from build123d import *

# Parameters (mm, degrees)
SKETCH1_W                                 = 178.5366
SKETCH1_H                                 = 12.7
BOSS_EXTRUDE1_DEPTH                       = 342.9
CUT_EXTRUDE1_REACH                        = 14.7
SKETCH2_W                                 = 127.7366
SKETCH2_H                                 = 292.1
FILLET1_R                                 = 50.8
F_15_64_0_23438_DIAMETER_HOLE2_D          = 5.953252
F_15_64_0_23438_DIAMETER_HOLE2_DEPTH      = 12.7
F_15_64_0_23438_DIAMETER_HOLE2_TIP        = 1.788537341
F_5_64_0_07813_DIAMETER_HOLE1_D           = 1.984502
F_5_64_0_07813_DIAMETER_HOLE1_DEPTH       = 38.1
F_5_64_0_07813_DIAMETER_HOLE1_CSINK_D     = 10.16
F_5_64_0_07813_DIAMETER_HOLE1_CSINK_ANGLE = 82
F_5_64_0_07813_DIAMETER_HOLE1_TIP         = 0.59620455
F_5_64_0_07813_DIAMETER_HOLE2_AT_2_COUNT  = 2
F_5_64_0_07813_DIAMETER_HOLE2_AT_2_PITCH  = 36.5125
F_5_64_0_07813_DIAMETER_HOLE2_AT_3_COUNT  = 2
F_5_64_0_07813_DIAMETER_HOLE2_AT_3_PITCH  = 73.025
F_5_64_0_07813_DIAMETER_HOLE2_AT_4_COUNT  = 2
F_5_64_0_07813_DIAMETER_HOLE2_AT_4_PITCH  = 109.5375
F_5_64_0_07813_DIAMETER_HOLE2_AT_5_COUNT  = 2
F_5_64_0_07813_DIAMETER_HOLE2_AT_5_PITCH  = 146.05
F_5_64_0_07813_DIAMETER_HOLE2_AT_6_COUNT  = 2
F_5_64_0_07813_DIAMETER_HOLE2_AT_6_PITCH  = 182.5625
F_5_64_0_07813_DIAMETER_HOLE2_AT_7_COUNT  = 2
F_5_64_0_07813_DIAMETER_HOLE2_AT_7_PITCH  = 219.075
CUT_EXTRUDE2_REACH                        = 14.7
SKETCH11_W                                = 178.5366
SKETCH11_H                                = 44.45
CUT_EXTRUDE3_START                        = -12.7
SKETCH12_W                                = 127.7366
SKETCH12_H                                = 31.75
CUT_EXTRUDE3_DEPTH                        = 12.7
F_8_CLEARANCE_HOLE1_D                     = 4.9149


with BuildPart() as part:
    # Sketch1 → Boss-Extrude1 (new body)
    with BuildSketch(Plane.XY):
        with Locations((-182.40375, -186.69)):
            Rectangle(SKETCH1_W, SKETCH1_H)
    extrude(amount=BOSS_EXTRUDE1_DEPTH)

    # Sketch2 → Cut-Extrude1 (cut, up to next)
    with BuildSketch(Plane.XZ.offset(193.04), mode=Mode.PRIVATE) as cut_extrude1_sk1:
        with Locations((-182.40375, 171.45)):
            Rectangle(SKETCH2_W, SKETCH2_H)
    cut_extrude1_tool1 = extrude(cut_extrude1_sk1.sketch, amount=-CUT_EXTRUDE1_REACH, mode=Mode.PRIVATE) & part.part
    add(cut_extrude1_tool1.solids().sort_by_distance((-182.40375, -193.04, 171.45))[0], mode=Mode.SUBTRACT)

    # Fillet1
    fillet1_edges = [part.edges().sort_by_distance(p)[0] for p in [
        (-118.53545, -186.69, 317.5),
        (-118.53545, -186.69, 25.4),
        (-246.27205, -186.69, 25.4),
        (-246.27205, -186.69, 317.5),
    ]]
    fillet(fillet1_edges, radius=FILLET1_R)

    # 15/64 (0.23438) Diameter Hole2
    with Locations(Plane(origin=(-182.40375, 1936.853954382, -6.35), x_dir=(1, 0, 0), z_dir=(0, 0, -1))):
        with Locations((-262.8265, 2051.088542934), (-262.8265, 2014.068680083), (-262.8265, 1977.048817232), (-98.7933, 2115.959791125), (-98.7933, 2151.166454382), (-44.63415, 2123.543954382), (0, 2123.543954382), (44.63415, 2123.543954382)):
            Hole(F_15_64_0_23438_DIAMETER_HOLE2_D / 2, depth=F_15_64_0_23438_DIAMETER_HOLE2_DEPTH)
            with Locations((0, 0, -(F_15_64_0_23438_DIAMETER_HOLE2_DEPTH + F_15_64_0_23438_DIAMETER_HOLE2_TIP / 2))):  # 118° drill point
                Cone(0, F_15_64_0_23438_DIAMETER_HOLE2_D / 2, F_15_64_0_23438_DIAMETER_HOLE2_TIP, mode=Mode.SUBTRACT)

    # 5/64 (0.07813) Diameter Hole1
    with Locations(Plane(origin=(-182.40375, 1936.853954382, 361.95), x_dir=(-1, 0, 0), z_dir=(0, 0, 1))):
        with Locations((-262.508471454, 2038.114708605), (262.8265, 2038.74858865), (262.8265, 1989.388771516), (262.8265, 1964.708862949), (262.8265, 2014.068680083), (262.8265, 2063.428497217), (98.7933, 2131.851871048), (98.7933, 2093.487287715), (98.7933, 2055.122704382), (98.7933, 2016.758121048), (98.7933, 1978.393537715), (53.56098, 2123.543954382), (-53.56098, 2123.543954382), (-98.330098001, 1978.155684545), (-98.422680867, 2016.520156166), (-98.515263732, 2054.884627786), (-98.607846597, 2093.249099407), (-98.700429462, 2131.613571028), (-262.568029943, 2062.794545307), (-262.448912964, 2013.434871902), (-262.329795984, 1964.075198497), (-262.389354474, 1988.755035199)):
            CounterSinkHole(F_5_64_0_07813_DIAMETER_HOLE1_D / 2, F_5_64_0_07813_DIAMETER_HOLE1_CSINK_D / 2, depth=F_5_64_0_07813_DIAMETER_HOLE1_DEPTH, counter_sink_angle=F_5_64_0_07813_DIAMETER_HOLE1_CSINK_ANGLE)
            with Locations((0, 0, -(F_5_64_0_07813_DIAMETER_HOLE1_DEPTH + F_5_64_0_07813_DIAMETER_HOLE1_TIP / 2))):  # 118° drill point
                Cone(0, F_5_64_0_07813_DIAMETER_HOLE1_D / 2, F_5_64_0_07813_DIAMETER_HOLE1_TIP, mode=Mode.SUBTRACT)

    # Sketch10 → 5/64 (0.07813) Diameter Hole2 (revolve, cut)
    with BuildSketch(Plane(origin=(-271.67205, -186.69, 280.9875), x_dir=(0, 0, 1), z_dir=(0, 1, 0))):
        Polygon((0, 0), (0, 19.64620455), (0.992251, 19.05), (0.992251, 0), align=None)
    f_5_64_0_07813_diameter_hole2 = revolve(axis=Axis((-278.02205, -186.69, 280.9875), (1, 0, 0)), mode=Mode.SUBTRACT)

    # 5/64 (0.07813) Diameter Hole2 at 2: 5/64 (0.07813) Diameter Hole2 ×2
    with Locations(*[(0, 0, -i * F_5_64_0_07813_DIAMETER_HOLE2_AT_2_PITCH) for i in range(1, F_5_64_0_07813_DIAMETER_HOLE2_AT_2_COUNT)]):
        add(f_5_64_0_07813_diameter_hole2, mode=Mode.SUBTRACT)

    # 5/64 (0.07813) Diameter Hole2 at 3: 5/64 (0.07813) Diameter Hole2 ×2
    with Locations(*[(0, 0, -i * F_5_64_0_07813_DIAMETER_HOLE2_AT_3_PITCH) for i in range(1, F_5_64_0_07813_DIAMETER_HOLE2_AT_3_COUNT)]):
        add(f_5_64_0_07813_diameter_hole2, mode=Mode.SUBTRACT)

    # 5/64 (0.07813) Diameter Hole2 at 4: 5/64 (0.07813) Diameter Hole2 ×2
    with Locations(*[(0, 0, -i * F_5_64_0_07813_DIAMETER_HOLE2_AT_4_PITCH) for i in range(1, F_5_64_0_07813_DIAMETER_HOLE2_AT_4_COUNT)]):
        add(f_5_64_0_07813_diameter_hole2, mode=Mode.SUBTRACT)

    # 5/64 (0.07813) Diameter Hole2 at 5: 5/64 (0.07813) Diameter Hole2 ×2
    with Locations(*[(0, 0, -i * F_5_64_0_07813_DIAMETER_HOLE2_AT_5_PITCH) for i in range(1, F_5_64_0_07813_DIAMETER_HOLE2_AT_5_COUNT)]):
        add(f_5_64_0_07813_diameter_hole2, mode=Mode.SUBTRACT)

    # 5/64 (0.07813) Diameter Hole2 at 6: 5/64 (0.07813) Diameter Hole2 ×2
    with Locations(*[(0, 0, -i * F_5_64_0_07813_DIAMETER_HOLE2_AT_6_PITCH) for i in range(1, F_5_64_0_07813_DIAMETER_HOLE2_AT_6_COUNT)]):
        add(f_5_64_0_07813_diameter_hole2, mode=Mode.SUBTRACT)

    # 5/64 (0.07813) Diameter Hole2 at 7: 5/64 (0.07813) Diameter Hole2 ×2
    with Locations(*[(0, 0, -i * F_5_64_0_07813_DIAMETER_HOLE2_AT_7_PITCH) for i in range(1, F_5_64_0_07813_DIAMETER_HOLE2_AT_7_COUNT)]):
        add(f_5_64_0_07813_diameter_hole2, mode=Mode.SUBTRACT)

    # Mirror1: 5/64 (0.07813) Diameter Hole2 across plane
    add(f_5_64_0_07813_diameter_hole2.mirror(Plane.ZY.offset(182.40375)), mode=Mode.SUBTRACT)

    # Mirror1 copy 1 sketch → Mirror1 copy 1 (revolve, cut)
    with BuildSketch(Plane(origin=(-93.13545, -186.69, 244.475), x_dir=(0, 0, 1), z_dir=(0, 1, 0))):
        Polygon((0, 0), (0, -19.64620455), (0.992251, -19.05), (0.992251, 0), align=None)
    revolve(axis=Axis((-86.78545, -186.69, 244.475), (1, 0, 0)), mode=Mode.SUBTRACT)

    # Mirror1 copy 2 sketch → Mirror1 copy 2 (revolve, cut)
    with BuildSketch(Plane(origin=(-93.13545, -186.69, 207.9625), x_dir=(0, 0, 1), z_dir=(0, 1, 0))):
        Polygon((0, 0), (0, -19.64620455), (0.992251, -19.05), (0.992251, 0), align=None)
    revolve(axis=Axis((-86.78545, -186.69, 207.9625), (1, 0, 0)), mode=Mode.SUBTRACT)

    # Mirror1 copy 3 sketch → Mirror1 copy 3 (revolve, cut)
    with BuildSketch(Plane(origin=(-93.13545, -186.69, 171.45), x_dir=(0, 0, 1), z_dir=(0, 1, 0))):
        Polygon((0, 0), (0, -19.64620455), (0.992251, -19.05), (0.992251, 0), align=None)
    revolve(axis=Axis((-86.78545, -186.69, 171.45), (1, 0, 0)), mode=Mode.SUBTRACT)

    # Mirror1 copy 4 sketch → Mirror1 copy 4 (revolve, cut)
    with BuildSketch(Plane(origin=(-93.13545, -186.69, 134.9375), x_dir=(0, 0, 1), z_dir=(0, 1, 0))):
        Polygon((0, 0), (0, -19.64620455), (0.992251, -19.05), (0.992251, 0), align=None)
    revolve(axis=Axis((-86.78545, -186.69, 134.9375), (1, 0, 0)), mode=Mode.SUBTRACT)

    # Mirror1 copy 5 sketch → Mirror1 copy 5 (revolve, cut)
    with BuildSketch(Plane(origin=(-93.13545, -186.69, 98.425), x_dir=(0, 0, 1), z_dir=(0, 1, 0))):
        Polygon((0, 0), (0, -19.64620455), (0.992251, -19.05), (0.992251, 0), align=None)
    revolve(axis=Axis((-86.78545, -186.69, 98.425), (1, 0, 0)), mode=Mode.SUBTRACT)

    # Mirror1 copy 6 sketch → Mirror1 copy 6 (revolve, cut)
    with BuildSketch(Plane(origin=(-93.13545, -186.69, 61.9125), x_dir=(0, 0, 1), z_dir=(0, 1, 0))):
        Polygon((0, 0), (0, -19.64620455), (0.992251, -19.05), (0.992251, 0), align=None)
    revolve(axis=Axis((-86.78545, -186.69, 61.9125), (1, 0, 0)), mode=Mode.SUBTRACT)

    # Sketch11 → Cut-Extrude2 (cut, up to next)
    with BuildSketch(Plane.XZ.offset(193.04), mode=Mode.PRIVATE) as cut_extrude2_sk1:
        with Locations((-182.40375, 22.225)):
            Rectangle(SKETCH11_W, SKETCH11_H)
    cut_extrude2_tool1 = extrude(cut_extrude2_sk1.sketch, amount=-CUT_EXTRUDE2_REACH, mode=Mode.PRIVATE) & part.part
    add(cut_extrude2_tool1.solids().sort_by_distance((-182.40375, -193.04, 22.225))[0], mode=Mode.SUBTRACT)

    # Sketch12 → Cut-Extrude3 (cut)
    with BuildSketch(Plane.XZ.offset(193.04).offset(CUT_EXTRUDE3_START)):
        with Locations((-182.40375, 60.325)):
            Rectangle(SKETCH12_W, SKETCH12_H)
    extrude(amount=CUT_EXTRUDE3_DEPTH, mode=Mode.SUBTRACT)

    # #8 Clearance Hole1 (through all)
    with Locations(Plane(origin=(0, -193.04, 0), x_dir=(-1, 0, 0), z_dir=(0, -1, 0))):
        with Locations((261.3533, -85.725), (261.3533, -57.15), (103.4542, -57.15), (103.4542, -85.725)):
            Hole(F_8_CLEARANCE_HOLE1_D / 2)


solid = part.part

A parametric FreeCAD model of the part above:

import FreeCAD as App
import Part
import Sketcher
Q = App.Units.Quantity


def edges_at(feature, points):
    """Names of the edges that pass closest to the given points."""
    edges = feature.Shape.Edges
    near = lambda p: min(range(len(edges)), key=lambda i: edges[i].distToShape(Part.Vertex(*p))[0])
    return sorted({f"Edge{near(p) + 1}" for p in points})

doc = App.newDocument("Part")
body = doc.addObject("PartDesign::Body", "Body")

sketch1 = body.newObject("Sketcher::SketchObject", "Sketch")
sketch1.AttachmentSupport = (doc.getObject("XY_Plane"), [""])
sketch1.MapMode = "FlatFace"
sketch1.addGeometry([
    Part.LineSegment(App.Vector(-272, -180, 0), App.Vector(-272, -193, 0)),
    Part.LineSegment(App.Vector(-272, -193, 0), App.Vector(-93, -193, 0)),
    Part.LineSegment(App.Vector(-93, -193, 0), App.Vector(-93, -180, 0)),
    Part.LineSegment(App.Vector(-93, -180, 0), App.Vector(-272, -180, 0)),
], False)
sketch1.addConstraint([
    Sketcher.Constraint("Coincident", 0, 2, 1, 1),
    Sketcher.Constraint("Coincident", 1, 2, 2, 1),
    Sketcher.Constraint("Coincident", 2, 2, 3, 1),
    Sketcher.Constraint("Coincident", 3, 2, 0, 1),
    Sketcher.Constraint("Vertical", 0),
    Sketcher.Constraint("Horizontal", 1),
    Sketcher.Constraint("Vertical", 2),
    Sketcher.Constraint("Horizontal", 3),
    Sketcher.Constraint("DistanceY", 0, 2, 0, 1, Q("0.5 in")),
    Sketcher.Constraint("DistanceY", 0, 2, -1, 1, Q("7.6 in")),
    Sketcher.Constraint("DistanceX", 1, 1, 1, 2, Q("7.029 in")),
    Sketcher.Constraint("DistanceX", 0, 2, -1, 1, Q("271.67205 mm")),
])
pad1 = body.newObject("PartDesign::Pad", "Pad")
pad1.Profile = sketch1
pad1.Length = Q("13.5 in")

sketch2 = body.newObject("Sketcher::SketchObject", "Sketch001")
sketch2.AttachmentSupport = (doc.getObject("XZ_Plane"), [""])
sketch2.MapMode = "FlatFace"
sketch2.AttachmentOffset = App.Placement(App.Vector(0, 0, 7.6 * 25.4), App.Rotation())
sketch2.addGeometry([
    Part.LineSegment(App.Vector(-246, 318, 0), App.Vector(-246, 25, 0)),
    Part.LineSegment(App.Vector(-246, 25, 0), App.Vector(-119, 25, 0)),
    Part.LineSegment(App.Vector(-119, 25, 0), App.Vector(-119, 318, 0)),
    Part.LineSegment(App.Vector(-119, 318, 0), App.Vector(-246, 318, 0)),
], False)
sketch2.addConstraint([
    Sketcher.Constraint("Coincident", 0, 2, 1, 1),
    Sketcher.Constraint("Coincident", 1, 2, 2, 1),
    Sketcher.Constraint("Coincident", 2, 2, 3, 1),
    Sketcher.Constraint("Coincident", 3, 2, 0, 1),
    Sketcher.Constraint("Vertical", 0),
    Sketcher.Constraint("Horizontal", 1),
    Sketcher.Constraint("Vertical", 2),
    Sketcher.Constraint("Horizontal", 3),
    Sketcher.Constraint("DistanceY", 0, 2, 0, 1, Q("11.5 in")),
    Sketcher.Constraint("DistanceY", -1, 1, 0, 2, Q("1 in")),
    Sketcher.Constraint("DistanceX", 1, 1, 1, 2, Q("5.029 in")),
    Sketcher.Constraint("DistanceX", 0, 2, -1, 1, Q("246.27205 mm")),
])
pocket1 = body.newObject("PartDesign::Pocket", "Pocket")
pocket1.Profile = sketch2
pocket1.Type = "UpToFirst"
doc.recompute()

fillet = body.newObject("PartDesign::Fillet", "Fillet")
fillet.Base = (pocket1, edges_at(pocket1, [
    (-118.535, -186.69, 317.5),
    (-118.535, -186.69, 25.4),
    (-246.272, -186.69, 25.4),
    (-246.272, -186.69, 317.5),
]))
fillet.Radius = Q("2 in")

sketch3 = body.newObject("Sketcher::SketchObject", "Sketch002")
sketch3.AttachmentSupport = (doc.getObject("XY_Plane"), [""])
sketch3.MapMode = "FlatFace"
sketch3.AttachmentOffset = App.Placement(App.Vector(0, 0, -0.25 * 25.4), App.Rotation())
sketch3.addGeometry([
    Part.Circle(App.Vector(-445.2, -114.2, 0), App.Vector(0, 0, 1), 3),
    Part.Circle(App.Vector(-445.2, -77.2, 0), App.Vector(0, 0, 1), 3),
    Part.Circle(App.Vector(-445.2, -40.2, 0), App.Vector(0, 0, 1), 3),
    Part.Circle(App.Vector(-281.2, -179.1, 0), App.Vector(0, 0, 1), 3),
    Part.Circle(App.Vector(-281.2, -214.3, 0), App.Vector(0, 0, 1), 3),
    Part.Circle(App.Vector(-227, -186.7, 0), App.Vector(0, 0, 1), 3),
    Part.Circle(App.Vector(-182.4, -186.7, 0), App.Vector(0, 0, 1), 3),
    Part.Circle(App.Vector(-137.8, -186.7, 0), App.Vector(0, 0, 1), 3),
], False)
sketch3.addConstraint([
    Sketcher.Constraint("Equal", 0, 1),
    Sketcher.Constraint("Equal", 1, 2),
    Sketcher.Constraint("Equal", 2, 3),
    Sketcher.Constraint("Equal", 3, 4),
    Sketcher.Constraint("Equal", 4, 5),
    Sketcher.Constraint("Equal", 5, 6),
    Sketcher.Constraint("Equal", 6, 7),
    Sketcher.Constraint("Horizontal", 5, 3, 6, 3),
    Sketcher.Constraint("Horizontal", 6, 3, 7, 3),
    Sketcher.Constraint("Vertical", 0, 3, 1, 3),
    Sketcher.Constraint("Vertical", 1, 3, 2, 3),
    Sketcher.Constraint("Vertical", 3, 3, 4, 3),
    Sketcher.Constraint("DistanceY", 5, 3, -1, 1, Q("7.35 in")),
    Sketcher.Constraint("DistanceY", 4, 3, -1, 1, Q("8.4375 in")),
    Sketcher.Constraint("DistanceX", 7, 3, -1, 1, Q("5.424 in")),
    Sketcher.Constraint("DistanceX", 0, 3, 3, 3, Q("6.458 in")),
    Sketcher.Constraint("Diameter", 0, Q("5.953252 mm")),
    Sketcher.Constraint("DistanceX", 5, 3, -1, 1, Q("8.9385 in")),
    Sketcher.Constraint("DistanceX", 3, 3, 6, 3, Q("3.8895 in")),
    Sketcher.Constraint("DistanceX", 0, 3, -1, 1, Q("445.23025 mm")),
    Sketcher.Constraint("DistanceY", 0, 3, -1, 1, Q("114.234589 mm")),
    Sketcher.Constraint("DistanceY", 3, 3, 0, 3, Q("64.871248 mm")),
    Sketcher.Constraint("DistanceY", 3, 3, 1, 3, Q("101.891111 mm")),
    Sketcher.Constraint("DistanceY", 2, 3, -1, 1, Q("40.194863 mm")),
])
doc.recompute()
hole = body.newObject("PartDesign::Hole", "Hole")
hole.Profile = sketch3
hole.ThreadType = "None"
hole.Diameter = 5.953252
hole.DepthType = "Dimension"
hole.Depth = Q("0.5 in")
hole.DrillPoint = "Angled"
hole.DrillPointAngle = 118
hole.Reversed = True

sketch4 = body.newObject("Sketcher::SketchObject", "Sketch003")
sketch4.AttachmentSupport = (doc.getObject("XY_Plane"), [""])
sketch4.MapMode = "FlatFace"
sketch4.AttachmentOffset = App.Placement(App.Vector(0, 0, 14.25 * 25.4), App.Rotation())
sketch4.addGeometry([
    Part.Circle(App.Vector(80.1, -101.3, 0), App.Vector(0, 0, 1), 1),
    Part.Circle(App.Vector(-445.2, -101.9, 0), App.Vector(0, 0, 1), 1),
    Part.Circle(App.Vector(-445.2, -52.5, 0), App.Vector(0, 0, 1), 1),
    Part.Circle(App.Vector(-445.2, -27.9, 0), App.Vector(0, 0, 1), 1),
    Part.Circle(App.Vector(-445.2, -77.2, 0), App.Vector(0, 0, 1), 1),
    Part.Circle(App.Vector(-445.2, -126.6, 0), App.Vector(0, 0, 1), 1),
    Part.Circle(App.Vector(-281.2, -195, 0), App.Vector(0, 0, 1), 1),
    Part.Circle(App.Vector(-281.2, -156.6, 0), App.Vector(0, 0, 1), 1),
    Part.Circle(App.Vector(-281.2, -118.3, 0), App.Vector(0, 0, 1), 1),
    Part.Circle(App.Vector(-281.2, -79.9, 0), App.Vector(0, 0, 1), 1),
    Part.Circle(App.Vector(-281.2, -41.5, 0), App.Vector(0, 0, 1), 1),
    Part.Circle(App.Vector(-236, -186.7, 0), App.Vector(0, 0, 1), 1),
    Part.Circle(App.Vector(-128.8, -186.7, 0), App.Vector(0, 0, 1), 1),
    Part.Circle(App.Vector(-84.1, -41.3, 0), App.Vector(0, 0, 1), 1),
    Part.Circle(App.Vector(-84, -79.7, 0), App.Vector(0, 0, 1), 1),
    Part.Circle(App.Vector(-83.9, -118, 0), App.Vector(0, 0, 1), 1),
    Part.Circle(App.Vector(-83.8, -156.4, 0), App.Vector(0, 0, 1), 1),
    Part.Circle(App.Vector(-83.7, -194.8, 0), App.Vector(0, 0, 1), 1),
    Part.Circle(App.Vector(80.2, -125.9, 0), App.Vector(0, 0, 1), 1),
    Part.Circle(App.Vector(80, -76.6, 0), App.Vector(0, 0, 1), 1),
    Part.Circle(App.Vector(79.9, -27.2, 0), App.Vector(0, 0, 1), 1),
    Part.Circle(App.Vector(80, -51.9, 0), App.Vector(0, 0, 1), 1),
], False)
sketch4.addConstraint([
    Sketcher.Constraint("Equal", 0, 1),
    Sketcher.Constraint("Equal", 1, 2),
    Sketcher.Constraint("Equal", 2, 3),
    Sketcher.Constraint("Equal", 3, 4),
    Sketcher.Constraint("Equal", 4, 5),
    Sketcher.Constraint("Equal", 5, 6),
    Sketcher.Constraint("Equal", 6, 7),
    Sketcher.Constraint("Equal", 7, 8),
    Sketcher.Constraint("Equal", 8, 9),
    Sketcher.Constraint("Equal", 9, 10),
    Sketcher.Constraint("Equal", 10, 11),
    Sketcher.Constraint("Equal", 11, 12),
    Sketcher.Constraint("Equal", 12, 13),
    Sketcher.Constraint("Equal", 13, 14),
    Sketcher.Constraint("Equal", 14, 15),
    Sketcher.Constraint("Equal", 15, 16),
    Sketcher.Constraint("Equal", 16, 17),
    Sketcher.Constraint("Equal", 17, 18),
    Sketcher.Constraint("Equal", 18, 19),
    Sketcher.Constraint("Equal", 19, 20),
    Sketcher.Constraint("Equal", 20, 21),
    Sketcher.Constraint("Horizontal", 11, 3, 12, 3),
    Sketcher.Constraint("Vertical", 1, 3, 2, 3),
    Sketcher.Constraint("Vertical", 2, 3, 3, 3),
    Sketcher.Constraint("Vertical", 3, 3, 4, 3),
    Sketcher.Constraint("Vertical", 4, 3, 5, 3),
    Sketcher.Constraint("Vertical", 6, 3, 7, 3),
    Sketcher.Constraint("Vertical", 7, 3, 8, 3),
    Sketcher.Constraint("Vertical", 8, 3, 9, 3),
    Sketcher.Constraint("Vertical", 9, 3, 10, 3),
    Sketcher.Constraint("DistanceY", 11, 3, -1, 1, Q("7.35 in")),
    Sketcher.Constraint("DistanceY", 8, 3, -1, 1, Q("4.65625 in")),
    Sketcher.Constraint("DistanceX", 5, 3, 6, 3, Q("6.458 in")),
    Sketcher.Constraint("DistanceY", 6, 3, 9, 3, Q("4.53125 in")),
    Sketcher.Constraint("DistanceY", 7, 3, 10, 3, Q("4.53125 in")),
    Sketcher.Constraint("Diameter", 0, Q("1.984502 mm")),
    Sketcher.Constraint("DistanceY", 2, 3, -1, 1, Q("2.0682999 in")),
    Sketcher.Constraint("DistanceY", 1, 3, 2, 3, Q("1.9432999 in")),
    Sketcher.Constraint("DistanceY", 4, 3, 3, 3, Q("1.9432999 in")),
    Sketcher.Constraint("DistanceY", 5, 3, 4, 3, Q("1.9432999 in")),
    Sketcher.Constraint("DistanceY", 8, 3, 4, 3, Q("1.6163002 in")),
    Sketcher.Constraint("DistanceX", 6, 3, 11, 3, Q("1.7808 in")),
    Sketcher.Constraint("DistanceX", 11, 3, 12, 3, Q("4.2174 in")),
    Sketcher.Constraint("DistanceY", 14, 3, -1, 1, Q("79.666202 mm")),
    Sketcher.Constraint("DistanceY", 6, 3, 2, 3, Q("142.4631 mm")),
    Sketcher.Constraint("DistanceY", 7, 3, 1, 3, Q("54.738699 mm")),
    Sketcher.Constraint("DistanceX", 10, 3, 13, 3, Q("197.123398 mm")),
    Sketcher.Constraint("DistanceX", 12, 3, 14, 3, Q("44.861701 mm")),
    Sketcher.Constraint("DistanceX", 17, 3, 18, 3, Q("163.8676 mm")),
    Sketcher.Constraint("DistanceX", -1, 1, 0, 3, Q("80.104721 mm")),
    Sketcher.Constraint("DistanceX", 1, 3, -1, 1, Q("445.23025 mm")),
    Sketcher.Constraint("DistanceY", 13, 3, -1, 1, Q("41.30173 mm")),
    Sketcher.Constraint("DistanceX", 17, 3, -1, 1, Q("83.703321 mm")),
    Sketcher.Constraint("DistanceY", 18, 3, -1, 1, Q("125.940591 mm")),
    Sketcher.Constraint("DistanceY", 21, 3, -1, 1, Q("51.901081 mm")),
    Sketcher.Constraint("DistanceY", 1, 3, 0, 3, Q("0.63388 mm")),
    Sketcher.Constraint("DistanceY", 15, 3, 14, 3, Q("38.364472 mm")),
    Sketcher.Constraint("DistanceY", 16, 3, 15, 3, Q("38.364472 mm")),
    Sketcher.Constraint("DistanceX", 13, 3, 16, 3, Q("0.277749 mm")),
    Sketcher.Constraint("DistanceY", 17, 3, 16, 3, Q("38.364472 mm")),
    Sketcher.Constraint("DistanceX", 19, 3, 0, 3, Q("0.059558 mm")),
    Sketcher.Constraint("DistanceX", 15, 3, 19, 3, Q("163.933649 mm")),
    Sketcher.Constraint("DistanceY", 0, 3, 20, 3, Q("74.03951 mm")),
    Sketcher.Constraint("DistanceX", 20, 3, 21, 3, Q("0.059558 mm")),
    Sketcher.Constraint("DistanceX", 21, 3, 19, 3, Q("0.059558 mm")),
    Sketcher.Constraint("DistanceY", 19, 3, -1, 1, Q("76.580918 mm")),
])
doc.recompute()
hole2 = body.newObject("PartDesign::Hole", "Hole001")
hole2.Profile = sketch4
hole2.ThreadType = "None"
hole2.Diameter = 1.984502
hole2.DepthType = "Dimension"
hole2.Depth = Q("1.5 in")
hole2.DrillPoint = "Angled"
hole2.DrillPointAngle = 118
hole2.HoleCutType = "Countersink"
hole2.HoleCutDiameter = Q("0.4 in")
hole2.HoleCutCountersinkAngle = 82

sketch5 = body.newObject("Sketcher::SketchObject", "Sketch004")
sketch5.AttachmentSupport = (doc.getObject("XZ_Plane"), [""])
sketch5.MapMode = "FlatFace"
sketch5.AttachmentOffset = App.Placement(App.Vector(0, 0, 7.35 * 25.4), App.Rotation())
sketch5.addGeometry([
    Part.LineSegment(App.Vector(-252, 281, 0), App.Vector(-271.7, 281, 0)),
    Part.LineSegment(App.Vector(-271.7, 281, 0), App.Vector(-271.7, 282, 0)),
    Part.LineSegment(App.Vector(-271.7, 282, 0), App.Vector(-252.6, 282, 0)),
    Part.LineSegment(App.Vector(-252.6, 282, 0), App.Vector(-252, 281, 0)),
], False)
sketch5.addGeometry(Part.LineSegment(App.Vector(-271.7, 281, 0), App.Vector(-252, 281, 0)), True)
sketch5.addConstraint([
    Sketcher.Constraint("Coincident", 0, 2, 1, 1),
    Sketcher.Constraint("Coincident", 1, 2, 2, 1),
    Sketcher.Constraint("Coincident", 2, 2, 3, 1),
    Sketcher.Constraint("Coincident", 3, 2, 0, 1),
    Sketcher.Constraint("Horizontal", 0),
    Sketcher.Constraint("Vertical", 1),
    Sketcher.Constraint("Horizontal", 2),
    Sketcher.Constraint("Horizontal", 4),
    Sketcher.Constraint("Coincident", 4, 1, 0, 2),
    Sketcher.Constraint("Equal", 0, 4),
    Sketcher.Constraint("Angle", 3, Q("-59 deg")),
    Sketcher.Constraint("DistanceX", 2, 1, 2, 2, Q("0.75 in")),
    Sketcher.Constraint("DistanceY", -1, 1, 0, 2, Q("11.0625 in")),
    Sketcher.Constraint("DistanceY", 1, 1, 1, 2, Q("0.992251 mm")),
    Sketcher.Constraint("DistanceX", 0, 2, -1, 1, Q("271.67205 mm")),
])
groove = body.newObject("PartDesign::Groove", "Groove")
groove.Profile = sketch5
groove.ReferenceAxis = (sketch5, ["Axis0"])
groove.Angle = 360
doc.recompute()

linearpattern = body.newObject("PartDesign::LinearPattern", "LinearPattern")
linearpattern.Originals = [groove]
linearpattern.Direction = (doc.getObject("Z_Axis"), [""])
linearpattern.Mode = "offset"
linearpattern.Offset = Q("1.4375 in")
linearpattern.Occurrences = 2
linearpattern.Reversed = True
body.Tip = linearpattern
doc.recompute()

linearpattern2 = body.newObject("PartDesign::LinearPattern", "LinearPattern001")
linearpattern2.Originals = [groove]
linearpattern2.Direction = (doc.getObject("Z_Axis"), [""])
linearpattern2.Mode = "offset"
linearpattern2.Offset = Q("2.875 in")
linearpattern2.Occurrences = 2
linearpattern2.Reversed = True
body.Tip = linearpattern2
doc.recompute()

linearpattern3 = body.newObject("PartDesign::LinearPattern", "LinearPattern002")
linearpattern3.Originals = [groove]
linearpattern3.Direction = (doc.getObject("Z_Axis"), [""])
linearpattern3.Mode = "offset"
linearpattern3.Offset = Q("4.3125 in")
linearpattern3.Occurrences = 2
linearpattern3.Reversed = True
body.Tip = linearpattern3
doc.recompute()

linearpattern4 = body.newObject("PartDesign::LinearPattern", "LinearPattern003")
linearpattern4.Originals = [groove]
linearpattern4.Direction = (doc.getObject("Z_Axis"), [""])
linearpattern4.Mode = "offset"
linearpattern4.Offset = Q("5.75 in")
linearpattern4.Occurrences = 2
linearpattern4.Reversed = True
body.Tip = linearpattern4
doc.recompute()

linearpattern5 = body.newObject("PartDesign::LinearPattern", "LinearPattern004")
linearpattern5.Originals = [groove]
linearpattern5.Direction = (doc.getObject("Z_Axis"), [""])
linearpattern5.Mode = "offset"
linearpattern5.Offset = Q("7.1875 in")
linearpattern5.Occurrences = 2
linearpattern5.Reversed = True
body.Tip = linearpattern5
doc.recompute()

linearpattern6 = body.newObject("PartDesign::LinearPattern", "LinearPattern005")
linearpattern6.Originals = [groove]
linearpattern6.Direction = (doc.getObject("Z_Axis"), [""])
linearpattern6.Mode = "offset"
linearpattern6.Offset = Q("8.625 in")
linearpattern6.Occurrences = 2
linearpattern6.Reversed = True
body.Tip = linearpattern6
doc.recompute()

datumplane = body.newObject("PartDesign::Plane", "DatumPlane")
datumplane.AttachmentSupport = (doc.getObject("YZ_Plane"), [""])
datumplane.MapMode = "FlatFace"
datumplane.AttachmentOffset = App.Placement(App.Vector(0, 0, -182.40375), App.Rotation())
mirrored = body.newObject("PartDesign::Mirrored", "Mirrored")
mirrored.Originals = [groove]
mirrored.MirrorPlane = (datumplane, [""])
body.Tip = mirrored

sketch6 = body.newObject("Sketcher::SketchObject", "Sketch005")
sketch6.AttachmentSupport = (doc.getObject("XZ_Plane"), [""])
sketch6.MapMode = "FlatFace"
sketch6.AttachmentOffset = App.Placement(App.Vector(0, 0, 7.35 * 25.4), App.Rotation())
sketch6.addGeometry([
    Part.LineSegment(App.Vector(-93.1, 244.5, 0), App.Vector(-112.8, 244.5, 0)),
    Part.LineSegment(App.Vector(-112.8, 244.5, 0), App.Vector(-112.2, 245.5, 0)),
    Part.LineSegment(App.Vector(-112.2, 245.5, 0), App.Vector(-93.1, 245.5, 0)),
    Part.LineSegment(App.Vector(-93.1, 245.5, 0), App.Vector(-93.1, 244.5, 0)),
], False)
sketch6.addGeometry(Part.LineSegment(App.Vector(-112.8, 244.5, 0), App.Vector(-93.1, 244.5, 0)), True)
sketch6.addConstraint([
    Sketcher.Constraint("Coincident", 0, 2, 1, 1),
    Sketcher.Constraint("Coincident", 1, 2, 2, 1),
    Sketcher.Constraint("Coincident", 2, 2, 3, 1),
    Sketcher.Constraint("Coincident", 3, 2, 0, 1),
    Sketcher.Constraint("Horizontal", 0),
    Sketcher.Constraint("Horizontal", 2),
    Sketcher.Constraint("Vertical", 3),
    Sketcher.Constraint("Horizontal", 4),
    Sketcher.Constraint("Coincident", 4, 1, 0, 2),
    Sketcher.Constraint("Vertical", 2, 2, 4, 2),
    Sketcher.Constraint("Angle", 1, Q("59 deg")),
    Sketcher.Constraint("DistanceX", 2, 1, 2, 2, Q("0.75 in")),
    Sketcher.Constraint("DistanceY", -1, 1, 0, 2, Q("9.625 in")),
    Sketcher.Constraint("DistanceY", 3, 2, 3, 1, Q("0.992251 mm")),
    Sketcher.Constraint("DistanceX", 1, 2, -1, 1, Q("112.18545 mm")),
])
groove2 = body.newObject("PartDesign::Groove", "Groove001")
groove2.Profile = sketch6
groove2.ReferenceAxis = (sketch6, ["Axis0"])
groove2.Angle = 360

sketch7 = body.newObject("Sketcher::SketchObject", "Sketch006")
sketch7.AttachmentSupport = (doc.getObject("XZ_Plane"), [""])
sketch7.MapMode = "FlatFace"
sketch7.AttachmentOffset = App.Placement(App.Vector(0, 0, 7.35 * 25.4), App.Rotation())
sketch7.addGeometry([
    Part.LineSegment(App.Vector(-93.1, 208, 0), App.Vector(-112.8, 208, 0)),
    Part.LineSegment(App.Vector(-112.8, 208, 0), App.Vector(-112.2, 209, 0)),
    Part.LineSegment(App.Vector(-112.2, 209, 0), App.Vector(-93.1, 209, 0)),
    Part.LineSegment(App.Vector(-93.1, 209, 0), App.Vector(-93.1, 208, 0)),
], False)
sketch7.addGeometry(Part.LineSegment(App.Vector(-112.8, 208, 0), App.Vector(-93.1, 208, 0)), True)
sketch7.addConstraint([
    Sketcher.Constraint("Coincident", 0, 2, 1, 1),
    Sketcher.Constraint("Coincident", 1, 2, 2, 1),
    Sketcher.Constraint("Coincident", 2, 2, 3, 1),
    Sketcher.Constraint("Coincident", 3, 2, 0, 1),
    Sketcher.Constraint("Horizontal", 0),
    Sketcher.Constraint("Horizontal", 2),
    Sketcher.Constraint("Vertical", 3),
    Sketcher.Constraint("Horizontal", 4),
    Sketcher.Constraint("Coincident", 4, 1, 0, 2),
    Sketcher.Constraint("Vertical", 2, 2, 4, 2),
    Sketcher.Constraint("Angle", 1, Q("59 deg")),
    Sketcher.Constraint("DistanceX", 2, 1, 2, 2, Q("0.75 in")),
    Sketcher.Constraint("DistanceY", -1, 1, 0, 2, Q("8.1875 in")),
    Sketcher.Constraint("DistanceY", 3, 2, 3, 1, Q("0.992251 mm")),
    Sketcher.Constraint("DistanceX", 1, 2, -1, 1, Q("112.18545 mm")),
])
groove3 = body.newObject("PartDesign::Groove", "Groove002")
groove3.Profile = sketch7
groove3.ReferenceAxis = (sketch7, ["Axis0"])
groove3.Angle = 360

sketch8 = body.newObject("Sketcher::SketchObject", "Sketch007")
sketch8.AttachmentSupport = (doc.getObject("XZ_Plane"), [""])
sketch8.MapMode = "FlatFace"
sketch8.AttachmentOffset = App.Placement(App.Vector(0, 0, 7.35 * 25.4), App.Rotation())
sketch8.addGeometry([
    Part.LineSegment(App.Vector(-93.1, 171.4, 0), App.Vector(-112.8, 171.4, 0)),
    Part.LineSegment(App.Vector(-112.8, 171.4, 0), App.Vector(-112.2, 172.4, 0)),
    Part.LineSegment(App.Vector(-112.2, 172.4, 0), App.Vector(-93.1, 172.4, 0)),
    Part.LineSegment(App.Vector(-93.1, 172.4, 0), App.Vector(-93.1, 171.4, 0)),
], False)
sketch8.addGeometry(Part.LineSegment(App.Vector(-112.8, 171.4, 0), App.Vector(-93.1, 171.4, 0)), True)
sketch8.addConstraint([
    Sketcher.Constraint("Coincident", 0, 2, 1, 1),
    Sketcher.Constraint("Coincident", 1, 2, 2, 1),
    Sketcher.Constraint("Coincident", 2, 2, 3, 1),
    Sketcher.Constraint("Coincident", 3, 2, 0, 1),
    Sketcher.Constraint("Horizontal", 0),
    Sketcher.Constraint("Horizontal", 2),
    Sketcher.Constraint("Vertical", 3),
    Sketcher.Constraint("Horizontal", 4),
    Sketcher.Constraint("Coincident", 4, 1, 0, 2),
    Sketcher.Constraint("Vertical", 2, 2, 4, 2),
    Sketcher.Constraint("Angle", 1, Q("59 deg")),
    Sketcher.Constraint("DistanceX", 2, 1, 2, 2, Q("0.75 in")),
    Sketcher.Constraint("DistanceY", -1, 1, 0, 2, Q("6.75 in")),
    Sketcher.Constraint("DistanceY", 3, 2, 3, 1, Q("0.992251 mm")),
    Sketcher.Constraint("DistanceX", 1, 2, -1, 1, Q("112.18545 mm")),
])
groove4 = body.newObject("PartDesign::Groove", "Groove003")
groove4.Profile = sketch8
groove4.ReferenceAxis = (sketch8, ["Axis0"])
groove4.Angle = 360

sketch9 = body.newObject("Sketcher::SketchObject", "Sketch008")
sketch9.AttachmentSupport = (doc.getObject("XZ_Plane"), [""])
sketch9.MapMode = "FlatFace"
sketch9.AttachmentOffset = App.Placement(App.Vector(0, 0, 7.35 * 25.4), App.Rotation())
sketch9.addGeometry([
    Part.LineSegment(App.Vector(-93.1, 134.9, 0), App.Vector(-112.8, 134.9, 0)),
    Part.LineSegment(App.Vector(-112.8, 134.9, 0), App.Vector(-112.2, 135.9, 0)),
    Part.LineSegment(App.Vector(-112.2, 135.9, 0), App.Vector(-93.1, 135.9, 0)),
    Part.LineSegment(App.Vector(-93.1, 135.9, 0), App.Vector(-93.1, 134.9, 0)),
], False)
sketch9.addGeometry(Part.LineSegment(App.Vector(-112.8, 134.9, 0), App.Vector(-93.1, 134.9, 0)), True)
sketch9.addConstraint([
    Sketcher.Constraint("Coincident", 0, 2, 1, 1),
    Sketcher.Constraint("Coincident", 1, 2, 2, 1),
    Sketcher.Constraint("Coincident", 2, 2, 3, 1),
    Sketcher.Constraint("Coincident", 3, 2, 0, 1),
    Sketcher.Constraint("Horizontal", 0),
    Sketcher.Constraint("Horizontal", 2),
    Sketcher.Constraint("Vertical", 3),
    Sketcher.Constraint("Horizontal", 4),
    Sketcher.Constraint("Coincident", 4, 1, 0, 2),
    Sketcher.Constraint("Vertical", 2, 2, 4, 2),
    Sketcher.Constraint("Angle", 1, Q("59 deg")),
    Sketcher.Constraint("DistanceX", 2, 1, 2, 2, Q("0.75 in")),
    Sketcher.Constraint("DistanceY", -1, 1, 0, 2, Q("5.3125 in")),
    Sketcher.Constraint("DistanceY", 3, 2, 3, 1, Q("0.992251 mm")),
    Sketcher.Constraint("DistanceX", 1, 2, -1, 1, Q("112.18545 mm")),
])
groove5 = body.newObject("PartDesign::Groove", "Groove004")
groove5.Profile = sketch9
groove5.ReferenceAxis = (sketch9, ["Axis0"])
groove5.Angle = 360

sketch10 = body.newObject("Sketcher::SketchObject", "Sketch009")
sketch10.AttachmentSupport = (doc.getObject("XZ_Plane"), [""])
sketch10.MapMode = "FlatFace"
sketch10.AttachmentOffset = App.Placement(App.Vector(0, 0, 7.35 * 25.4), App.Rotation())
sketch10.addGeometry([
    Part.LineSegment(App.Vector(-93.1, 98.4, 0), App.Vector(-112.8, 98.4, 0)),
    Part.LineSegment(App.Vector(-112.8, 98.4, 0), App.Vector(-112.2, 99.4, 0)),
    Part.LineSegment(App.Vector(-112.2, 99.4, 0), App.Vector(-93.1, 99.4, 0)),
    Part.LineSegment(App.Vector(-93.1, 99.4, 0), App.Vector(-93.1, 98.4, 0)),
], False)
sketch10.addGeometry(Part.LineSegment(App.Vector(-112.8, 98.4, 0), App.Vector(-93.1, 98.4, 0)), True)
sketch10.addConstraint([
    Sketcher.Constraint("Coincident", 0, 2, 1, 1),
    Sketcher.Constraint("Coincident", 1, 2, 2, 1),
    Sketcher.Constraint("Coincident", 2, 2, 3, 1),
    Sketcher.Constraint("Coincident", 3, 2, 0, 1),
    Sketcher.Constraint("Horizontal", 0),
    Sketcher.Constraint("Horizontal", 2),
    Sketcher.Constraint("Vertical", 3),
    Sketcher.Constraint("Horizontal", 4),
    Sketcher.Constraint("Coincident", 4, 1, 0, 2),
    Sketcher.Constraint("Vertical", 2, 2, 4, 2),
    Sketcher.Constraint("Angle", 1, Q("59 deg")),
    Sketcher.Constraint("DistanceX", 2, 1, 2, 2, Q("0.75 in")),
    Sketcher.Constraint("DistanceY", -1, 1, 0, 2, Q("3.875 in")),
    Sketcher.Constraint("DistanceY", 3, 2, 3, 1, Q("0.992251 mm")),
    Sketcher.Constraint("DistanceX", 1, 2, -1, 1, Q("112.18545 mm")),
])
groove6 = body.newObject("PartDesign::Groove", "Groove005")
groove6.Profile = sketch10
groove6.ReferenceAxis = (sketch10, ["Axis0"])
groove6.Angle = 360

sketch11 = body.newObject("Sketcher::SketchObject", "Sketch010")
sketch11.AttachmentSupport = (doc.getObject("XZ_Plane"), [""])
sketch11.MapMode = "FlatFace"
sketch11.AttachmentOffset = App.Placement(App.Vector(0, 0, 7.35 * 25.4), App.Rotation())
sketch11.addGeometry([
    Part.LineSegment(App.Vector(-93.1, 61.9, 0), App.Vector(-112.8, 61.9, 0)),
    Part.LineSegment(App.Vector(-112.8, 61.9, 0), App.Vector(-112.2, 62.9, 0)),
    Part.LineSegment(App.Vector(-112.2, 62.9, 0), App.Vector(-93.1, 62.9, 0)),
    Part.LineSegment(App.Vector(-93.1, 62.9, 0), App.Vector(-93.1, 61.9, 0)),
], False)
sketch11.addGeometry(Part.LineSegment(App.Vector(-112.8, 61.9, 0), App.Vector(-93.1, 61.9, 0)), True)
sketch11.addConstraint([
    Sketcher.Constraint("Coincident", 0, 2, 1, 1),
    Sketcher.Constraint("Coincident", 1, 2, 2, 1),
    Sketcher.Constraint("Coincident", 2, 2, 3, 1),
    Sketcher.Constraint("Coincident", 3, 2, 0, 1),
    Sketcher.Constraint("Horizontal", 0),
    Sketcher.Constraint("Horizontal", 2),
    Sketcher.Constraint("Vertical", 3),
    Sketcher.Constraint("Horizontal", 4),
    Sketcher.Constraint("Coincident", 4, 1, 0, 2),
    Sketcher.Constraint("Vertical", 2, 2, 4, 2),
    Sketcher.Constraint("Angle", 1, Q("59 deg")),
    Sketcher.Constraint("DistanceX", 2, 1, 2, 2, Q("0.75 in")),
    Sketcher.Constraint("DistanceY", -1, 1, 0, 2, Q("2.4375 in")),
    Sketcher.Constraint("DistanceY", 3, 2, 3, 1, Q("0.992251 mm")),
    Sketcher.Constraint("DistanceX", 1, 2, -1, 1, Q("112.18545 mm")),
])
groove7 = body.newObject("PartDesign::Groove", "Groove006")
groove7.Profile = sketch11
groove7.ReferenceAxis = (sketch11, ["Axis0"])
groove7.Angle = 360

sketch12 = body.newObject("Sketcher::SketchObject", "Sketch011")
sketch12.AttachmentSupport = (doc.getObject("XZ_Plane"), [""])
sketch12.MapMode = "FlatFace"
sketch12.AttachmentOffset = App.Placement(App.Vector(0, 0, 7.6 * 25.4), App.Rotation())
sketch12.addGeometry([
    Part.LineSegment(App.Vector(-272, 44, 0), App.Vector(-272, 0, 0)),
    Part.LineSegment(App.Vector(-272, 0, 0), App.Vector(-93, 0, 0)),
    Part.LineSegment(App.Vector(-93, 0, 0), App.Vector(-93, 44, 0)),
    Part.LineSegment(App.Vector(-93, 44, 0), App.Vector(-272, 44, 0)),
], False)
sketch12.addConstraint([
    Sketcher.Constraint("Coincident", 0, 2, 1, 1),
    Sketcher.Constraint("Coincident", 1, 2, 2, 1),
    Sketcher.Constraint("Coincident", 2, 2, 3, 1),
    Sketcher.Constraint("Coincident", 3, 2, 0, 1),
    Sketcher.Constraint("Vertical", 0),
    Sketcher.Constraint("Horizontal", 1),
    Sketcher.Constraint("Vertical", 2),
    Sketcher.Constraint("Horizontal", 3),
    Sketcher.Constraint("PointOnObject", 0, 2, -1),
    Sketcher.Constraint("DistanceY", 0, 2, 0, 1, Q("1.75 in")),
    Sketcher.Constraint("DistanceX", 1, 1, 1, 2, Q("7.029 in")),
    Sketcher.Constraint("DistanceX", 0, 2, -1, 1, Q("271.67205 mm")),
])
pocket2 = body.newObject("PartDesign::Pocket", "Pocket001")
pocket2.Profile = sketch12
pocket2.Type = "UpToFirst"

sketch13 = body.newObject("Sketcher::SketchObject", "Sketch012")
sketch13.AttachmentSupport = (doc.getObject("XZ_Plane"), [""])
sketch13.MapMode = "FlatFace"
sketch13.AttachmentOffset = App.Placement(App.Vector(0, 0, 7.1 * 25.4), App.Rotation())
sketch13.addGeometry([
    Part.LineSegment(App.Vector(-246, 76, 0), App.Vector(-246, 44, 0)),
    Part.LineSegment(App.Vector(-246, 44, 0), App.Vector(-119, 44, 0)),
    Part.LineSegment(App.Vector(-119, 44, 0), App.Vector(-119, 76, 0)),
    Part.LineSegment(App.Vector(-119, 76, 0), App.Vector(-246, 76, 0)),
], False)
sketch13.addConstraint([
    Sketcher.Constraint("Coincident", 0, 2, 1, 1),
    Sketcher.Constraint("Coincident", 1, 2, 2, 1),
    Sketcher.Constraint("Coincident", 2, 2, 3, 1),
    Sketcher.Constraint("Coincident", 3, 2, 0, 1),
    Sketcher.Constraint("Vertical", 0),
    Sketcher.Constraint("Horizontal", 1),
    Sketcher.Constraint("Vertical", 2),
    Sketcher.Constraint("Horizontal", 3),
    Sketcher.Constraint("DistanceY", -1, 1, 2, 2, Q("3 in")),
    Sketcher.Constraint("DistanceY", 0, 2, 0, 1, Q("1.25 in")),
    Sketcher.Constraint("DistanceX", 1, 1, 1, 2, Q("5.029 in")),
    Sketcher.Constraint("DistanceX", 0, 2, -1, 1, Q("246.27205 mm")),
])
pocket3 = body.newObject("PartDesign::Pocket", "Pocket002")
pocket3.Profile = sketch13
pocket3.Length = Q("0.5 in")
pocket3.Reversed = True

sketch14 = body.newObject("Sketcher::SketchObject", "Sketch013")
sketch14.AttachmentSupport = (doc.getObject("XZ_Plane"), [""])
sketch14.MapMode = "FlatFace"
sketch14.AttachmentOffset = App.Placement(App.Vector(0, 0, 7.6 * 25.4), App.Rotation())
sketch14.addGeometry([
    Part.Circle(App.Vector(-261.4, 85.7, 0), App.Vector(0, 0, 1), 2.5),
    Part.Circle(App.Vector(-261.4, 57.1, 0), App.Vector(0, 0, 1), 2.5),
    Part.Circle(App.Vector(-103.5, 57.1, 0), App.Vector(0, 0, 1), 2.5),
    Part.Circle(App.Vector(-103.5, 85.7, 0), App.Vector(0, 0, 1), 2.5),
], False)
sketch14.addConstraint([
    Sketcher.Constraint("Equal", 0, 1),
    Sketcher.Constraint("Equal", 1, 2),
    Sketcher.Constraint("Equal", 2, 3),
    Sketcher.Constraint("Horizontal", 1, 3, 2, 3),
    Sketcher.Constraint("Horizontal", 0, 3, 3, 3),
    Sketcher.Constraint("Vertical", 0, 3, 1, 3),
    Sketcher.Constraint("Vertical", 2, 3, 3, 3),
    Sketcher.Constraint("Diameter", 0, Q("0.1935 in")),
    Sketcher.Constraint("DistanceY", -1, 1, 1, 3, Q("2.25 in")),
    Sketcher.Constraint("DistanceY", -1, 1, 0, 3, Q("3.375 in")),
    Sketcher.Constraint("DistanceX", 2, 3, -1, 1, Q("4.073 in")),
    Sketcher.Constraint("DistanceX", 0, 3, -1, 1, Q("10.2895 in")),
])
doc.recompute()
hole3 = body.newObject("PartDesign::Hole", "Hole002")
hole3.Profile = sketch14
hole3.ThreadType = "None"
hole3.Diameter = Q("0.1935 in")
hole3.DepthType = "ThroughAll"

doc.recompute()
